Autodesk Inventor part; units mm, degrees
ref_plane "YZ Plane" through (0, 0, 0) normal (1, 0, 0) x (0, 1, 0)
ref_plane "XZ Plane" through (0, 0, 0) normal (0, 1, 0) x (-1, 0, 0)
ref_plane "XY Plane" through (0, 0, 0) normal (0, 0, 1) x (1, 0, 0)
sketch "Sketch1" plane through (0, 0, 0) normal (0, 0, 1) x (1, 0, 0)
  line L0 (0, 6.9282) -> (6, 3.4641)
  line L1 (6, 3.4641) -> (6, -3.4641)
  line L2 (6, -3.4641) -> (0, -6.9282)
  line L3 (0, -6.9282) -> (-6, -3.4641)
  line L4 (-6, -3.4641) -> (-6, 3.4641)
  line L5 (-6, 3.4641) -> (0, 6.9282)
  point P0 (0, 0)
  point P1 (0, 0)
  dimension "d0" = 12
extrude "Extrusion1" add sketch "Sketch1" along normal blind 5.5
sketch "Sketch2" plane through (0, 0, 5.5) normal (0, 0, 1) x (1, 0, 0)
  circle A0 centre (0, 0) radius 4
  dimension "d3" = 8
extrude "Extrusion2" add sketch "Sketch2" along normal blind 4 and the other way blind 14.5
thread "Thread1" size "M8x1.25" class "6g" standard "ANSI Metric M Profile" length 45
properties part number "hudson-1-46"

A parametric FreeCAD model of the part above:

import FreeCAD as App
import Part
import Sketcher
Q = App.Units.Quantity


def add_polygon(sketch, points):
    """Adds a closed chain of lines whose ends are joined by coincident constraints."""
    first, n = sketch.GeometryCount, len(points)
    for a, b in zip(points, points[1:] + points[:1]):
        sketch.addGeometry(Part.LineSegment(App.Vector(*a, 0), App.Vector(*b, 0)), False)
    for i in range(n):
        sketch.addConstraint(Sketcher.Constraint("Coincident", first + i, 2, first + (i + 1) % n, 1))

doc = App.newDocument("Part")
params = doc.addObject("Spreadsheet::Sheet", "Params")
for row, (alias, value) in enumerate([
    ("pad1_length", "5.5 mm"),
    ("sketch2_diameter", "8 mm"),
    ("pad2_length", "4 mm"),
    ("pad2_length2", "14.5 mm"),
], start=1):
    params.set(f"A{row}", alias)
    params.set(f"B{row}", "=" + value)
    params.setAlias(f"B{row}", alias)

body = doc.addObject("PartDesign::Body", "Body")

sketch1 = body.newObject("Sketcher::SketchObject", "Sketch")
sketch1.AttachmentSupport = (doc.getObject("XY_Plane"), [""])
sketch1.MapMode = "FlatFace"
add_polygon(sketch1, [(6, 3), (0, 7), (-6, 3), (-6, -3), (0, -7), (6, -3)])
sketch1.addConstraint([
    Sketcher.Constraint("Vertical", 2),
    Sketcher.Constraint("Vertical", 5),
    Sketcher.Constraint("Symmetric", 0, 2, 3, 2, -1, 1),
    Sketcher.Constraint("Symmetric", 1, 2, 4, 2, -1, 1),
    Sketcher.Constraint("PointOnObject", 0, 2, -2),
    Sketcher.Constraint("Parallel", 0, 3),
    Sketcher.Constraint("Horizontal", 2, 2, 4, 2),
    Sketcher.Constraint("DistanceX", 2, 2, 4, 2, 12.0),
    Sketcher.Constraint("Angle", 0, Q("150 deg")),
    Sketcher.Constraint("DistanceY", 2, 2, 2, 1, 6.9282),
])
pad1 = body.newObject("PartDesign::Pad", "Pad")
pad1.Profile = sketch1
pad1.setExpression("Length", "Params.pad1_length")

sketch2 = body.newObject("Sketcher::SketchObject", "Sketch001")
sketch2.AttachmentSupport = (doc.getObject("XY_Plane"), [""])
sketch2.MapMode = "FlatFace"
sketch2.AttachmentOffset = App.Placement(App.Vector(0, 0, 5.5), App.Rotation())
sketch2.addGeometry(Part.Circle(App.Vector(0, 0, 0), App.Vector(0, 0, 1), 4), False)
sketch2.addConstraint([
    Sketcher.Constraint("Coincident", 0, 3, -1, 1),
    Sketcher.Constraint("Diameter", 0, 8.0),
])
sketch2.setExpression("Constraints[1]", "Params.sketch2_diameter")
pad2 = body.newObject("PartDesign::Pad", "Pad001")
pad2.Profile = sketch2
pad2.Type = "TwoLengths"
pad2.setExpression("Length", "Params.pad2_length")
pad2.setExpression("Length2", "Params.pad2_length2")

doc.recompute()
